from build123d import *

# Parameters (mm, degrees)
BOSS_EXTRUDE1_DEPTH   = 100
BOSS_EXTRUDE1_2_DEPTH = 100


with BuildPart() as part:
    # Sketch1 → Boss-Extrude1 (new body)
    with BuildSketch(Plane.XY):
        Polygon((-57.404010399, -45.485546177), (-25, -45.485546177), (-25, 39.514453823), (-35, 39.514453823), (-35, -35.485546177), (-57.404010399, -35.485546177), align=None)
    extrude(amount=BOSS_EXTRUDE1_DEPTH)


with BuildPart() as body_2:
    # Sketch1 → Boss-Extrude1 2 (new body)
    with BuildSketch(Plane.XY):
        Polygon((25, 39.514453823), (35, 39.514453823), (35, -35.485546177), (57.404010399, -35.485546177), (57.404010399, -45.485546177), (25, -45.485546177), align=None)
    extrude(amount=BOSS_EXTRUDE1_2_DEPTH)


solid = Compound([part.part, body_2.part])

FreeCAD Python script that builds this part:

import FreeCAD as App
import Part
import Sketcher
Q = App.Units.Quantity

doc = App.newDocument("Part")
body = doc.addObject("PartDesign::Body", "Body")

sketch1 = body.newObject("Sketcher::SketchObject", "Sketch")
sketch1.AttachmentSupport = (doc.getObject("XY_Plane"), [""])
sketch1.MapMode = "FlatFace"
sketch1.addGeometry([
    Part.LineSegment(App.Vector(-57, -45, 0), App.Vector(-25, -45, 0)),
    Part.LineSegment(App.Vector(-25, -45, 0), App.Vector(-25, 40, 0)),
    Part.LineSegment(App.Vector(-25, 40, 0), App.Vector(-35, 40, 0)),
    Part.LineSegment(App.Vector(-35, 40, 0), App.Vector(-35, -35, 0)),
    Part.LineSegment(App.Vector(-35, -35, 0), App.Vector(-57, -35, 0)),
    Part.LineSegment(App.Vector(-57, -35, 0), App.Vector(-57, -45, 0)),
], False)
sketch1.addConstraint([
    Sketcher.Constraint("Coincident", 0, 2, 1, 1),
    Sketcher.Constraint("Coincident", 1, 2, 2, 1),
    Sketcher.Constraint("Coincident", 2, 2, 3, 1),
    Sketcher.Constraint("Coincident", 3, 2, 4, 1),
    Sketcher.Constraint("Coincident", 4, 2, 5, 1),
    Sketcher.Constraint("Coincident", 5, 2, 0, 1),
    Sketcher.Constraint("Horizontal", 0),
    Sketcher.Constraint("Vertical", 1),
    Sketcher.Constraint("Horizontal", 2),
    Sketcher.Constraint("Vertical", 3),
    Sketcher.Constraint("Horizontal", 4),
    Sketcher.Constraint("Vertical", 5),
    Sketcher.Constraint("Equal", 2, 5),
    Sketcher.Constraint("DistanceX", 2, 2, 2, 1, Q("10 mm")),
    Sketcher.Constraint("DistanceY", 1, 1, 1, 2, Q("85 mm")),
    Sketcher.Constraint("DistanceX", 0, 2, -1, 1, Q("25 mm")),
    Sketcher.Constraint("DistanceX", 0, 1, 0, 2, Q("32.40401 mm")),
    Sketcher.Constraint("DistanceY", 0, 2, -1, 1, Q("45.485546 mm")),
])
pad1 = body.newObject("PartDesign::Pad", "Pad")
pad1.Profile = sketch1
pad1.Length = 100
body2 = doc.addObject("PartDesign::Body", "Body001")

sketch2 = body2.newObject("Sketcher::SketchObject", "Sketch001")
sketch2.AttachmentSupport = (doc.getObject("XY_Plane001"), [""])
sketch2.MapMode = "FlatFace"
sketch2.addGeometry([
    Part.LineSegment(App.Vector(35, 40, 0), App.Vector(25, 40, 0)),
    Part.LineSegment(App.Vector(25, 40, 0), App.Vector(25, -45, 0)),
    Part.LineSegment(App.Vector(25, -45, 0), App.Vector(57, -45, 0)),
    Part.LineSegment(App.Vector(57, -45, 0), App.Vector(57, -35, 0)),
    Part.LineSegment(App.Vector(57, -35, 0), App.Vector(35, -35, 0)),
    Part.LineSegment(App.Vector(35, -35, 0), App.Vector(35, 40, 0)),
], False)
sketch2.addConstraint([
    Sketcher.Constraint("Coincident", 0, 2, 1, 1),
    Sketcher.Constraint("Coincident", 1, 2, 2, 1),
    Sketcher.Constraint("Coincident", 2, 2, 3, 1),
    Sketcher.Constraint("Coincident", 3, 2, 4, 1),
    Sketcher.Constraint("Coincident", 4, 2, 5, 1),
    Sketcher.Constraint("Coincident", 5, 2, 0, 1),
    Sketcher.Constraint("Horizontal", 0),
    Sketcher.Constraint("Vertical", 1),
    Sketcher.Constraint("Horizontal", 2),
    Sketcher.Constraint("Vertical", 3),
    Sketcher.Constraint("Horizontal", 4),
    Sketcher.Constraint("Vertical", 5),
    Sketcher.Constraint("Equal", 0, 3),
    Sketcher.Constraint("DistanceX", 0, 2, 0, 1, Q("10 mm")),
    Sketcher.Constraint("DistanceY", 1, 2, 1, 1, Q("85 mm")),
    Sketcher.Constraint("DistanceX", -1, 1, 0, 2, Q("25 mm")),
    Sketcher.Constraint("DistanceX", 2, 1, 2, 2, Q("32.40401 mm")),
    Sketcher.Constraint("DistanceY", -1, 1, 0, 2, Q("39.514454 mm")),
])
pad2 = body2.newObject("PartDesign::Pad", "Pad001")
pad2.Profile = sketch2
pad2.Length = 100

doc.recompute()
